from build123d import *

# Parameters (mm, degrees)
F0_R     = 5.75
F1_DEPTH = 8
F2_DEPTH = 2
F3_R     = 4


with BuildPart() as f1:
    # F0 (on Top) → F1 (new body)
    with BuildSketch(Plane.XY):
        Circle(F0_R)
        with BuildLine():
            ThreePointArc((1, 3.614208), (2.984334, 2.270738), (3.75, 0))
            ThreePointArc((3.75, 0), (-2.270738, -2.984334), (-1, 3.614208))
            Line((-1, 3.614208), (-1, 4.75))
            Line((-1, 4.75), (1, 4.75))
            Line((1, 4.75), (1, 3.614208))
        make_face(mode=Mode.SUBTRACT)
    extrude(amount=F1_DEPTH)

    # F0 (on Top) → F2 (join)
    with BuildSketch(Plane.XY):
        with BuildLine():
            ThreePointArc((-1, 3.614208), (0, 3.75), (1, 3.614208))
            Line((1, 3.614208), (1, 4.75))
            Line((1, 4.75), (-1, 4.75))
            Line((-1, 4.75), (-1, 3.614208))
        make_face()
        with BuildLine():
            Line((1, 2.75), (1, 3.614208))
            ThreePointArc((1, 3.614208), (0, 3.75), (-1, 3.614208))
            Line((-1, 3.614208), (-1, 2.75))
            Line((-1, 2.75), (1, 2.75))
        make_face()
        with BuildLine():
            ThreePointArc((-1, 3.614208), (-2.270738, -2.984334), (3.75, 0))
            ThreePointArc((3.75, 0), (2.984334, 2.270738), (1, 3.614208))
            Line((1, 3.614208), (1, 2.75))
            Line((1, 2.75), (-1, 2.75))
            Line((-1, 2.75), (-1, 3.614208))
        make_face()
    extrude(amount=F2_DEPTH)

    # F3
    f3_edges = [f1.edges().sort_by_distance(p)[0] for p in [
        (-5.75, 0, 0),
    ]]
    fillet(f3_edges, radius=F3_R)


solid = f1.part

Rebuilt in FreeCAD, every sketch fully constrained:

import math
import FreeCAD as App
import Part
import Sketcher
from FreeCAD import Vector


def edges_at(feature, points):
    """Names of the edges that pass closest to the given points."""
    edges = feature.Shape.Edges
    near = lambda p: min(range(len(edges)), key=lambda i: edges[i].distToShape(Part.Vertex(*p))[0])
    return sorted({f"Edge{near(p) + 1}" for p in points})

doc = App.newDocument("Part")
body = doc.addObject("PartDesign::Body", "Body")

sketch1 = body.newObject("Sketcher::SketchObject", "Sketch")
sketch1.AttachmentSupport = (doc.getObject("XY_Plane"), [""])
sketch1.MapMode = "FlatFace"
sketch1.addGeometry([
    Part.Circle(Vector(0, 0, 0), Vector(0, 0, 1), 5.8),
    Part.LineSegment(Vector(1, 4.8, 0), Vector(1, 3.6, 0)),
    Part.ArcOfCircle(Part.Circle(Vector(0, 0, 0), Vector(0, 0, 1), 3.7), math.radians(0), math.radians(75)),
    Part.ArcOfCircle(Part.Circle(Vector(0, 0, 0), Vector(0, 0, 1), 3.8), math.radians(105), math.radians(360)),
    Part.LineSegment(Vector(-1, 3.6, 0), Vector(-1, 4.8, 0)),
    Part.LineSegment(Vector(-1, 4.8, 0), Vector(1, 4.8, 0)),
], False)
sketch1.addConstraint([
    Sketcher.Constraint("Coincident", 1, 2, 2, 2),
    Sketcher.Constraint("Tangent", 2, 1, 3, 2),
    Sketcher.Constraint("Coincident", 3, 1, 4, 1),
    Sketcher.Constraint("Coincident", 4, 2, 5, 1),
    Sketcher.Constraint("Coincident", 5, 2, 1, 1),
    Sketcher.Constraint("Vertical", 1),
    Sketcher.Constraint("Vertical", 4),
    Sketcher.Constraint("Horizontal", 5),
    Sketcher.Constraint("Coincident", 0, 3, -1, 1),
    Sketcher.Constraint("Coincident", 2, 3, -1, 1),
    Sketcher.Constraint("Equal", 2, 3),
    Sketcher.Constraint("PointOnObject", 2, 1, -1),
    Sketcher.Constraint("Horizontal", 1, 2, 3, 1),
    Sketcher.Constraint("Diameter", 0, 11.5),
    Sketcher.Constraint("DistanceX", 5, 1, 5, 2, 2.0),
    Sketcher.Constraint("Radius", 2, 3.75),
    Sketcher.Constraint("DistanceY", -1, 1, 4, 2, 4.75),
])
pad1 = body.newObject("PartDesign::Pad", "Pad")
pad1.Profile = sketch1
pad1.Length = 8

sketch2 = body.newObject("Sketcher::SketchObject", "Sketch001")
sketch2.AttachmentSupport = (doc.getObject("XY_Plane"), [""])
sketch2.MapMode = "FlatFace"
sketch2.addGeometry([
    Part.LineSegment(Vector(1, 4.8, 0), Vector(-1, 4.8, 0)),
    Part.LineSegment(Vector(-1, 4.8, 0), Vector(-1, 3.6, 0)),
    Part.ArcOfCircle(Part.Circle(Vector(0, 0, 0), Vector(0, 0, 1), 3.8), math.radians(105), math.radians(360)),
    Part.ArcOfCircle(Part.Circle(Vector(0, 0, 0), Vector(0, 0, 1), 3.7), math.radians(0), math.radians(75)),
    Part.LineSegment(Vector(1, 3.6, 0), Vector(1, 4.8, 0)),
], False)
sketch2.addConstraint([
    Sketcher.Constraint("Coincident", 0, 2, 1, 1),
    Sketcher.Constraint("Coincident", 1, 2, 2, 1),
    Sketcher.Constraint("Tangent", 2, 2, 3, 1),
    Sketcher.Constraint("Coincident", 3, 2, 4, 1),
    Sketcher.Constraint("Coincident", 4, 2, 0, 1),
    Sketcher.Constraint("Horizontal", 0),
    Sketcher.Constraint("Vertical", 1),
    Sketcher.Constraint("Vertical", 4),
    Sketcher.Constraint("Coincident", 2, 3, -1, 1),
    Sketcher.Constraint("Equal", 2, 3),
    Sketcher.Constraint("PointOnObject", 2, 2, -1),
    Sketcher.Constraint("Horizontal", 1, 2, 3, 2),
    Sketcher.Constraint("DistanceX", 0, 2, 0, 1, 2.0),
    Sketcher.Constraint("Radius", 2, 3.75),
    Sketcher.Constraint("DistanceY", -1, 1, 0, 2, 4.75),
])
pad2 = body.newObject("PartDesign::Pad", "Pad001")
pad2.Profile = sketch2
pad2.Length = 2
doc.recompute()

fillet = body.newObject("PartDesign::Fillet", "Fillet")
fillet.Base = (pad2, edges_at(pad2, [(-5.75, 0, 0)]))
fillet.Radius = 4

doc.recompute()
